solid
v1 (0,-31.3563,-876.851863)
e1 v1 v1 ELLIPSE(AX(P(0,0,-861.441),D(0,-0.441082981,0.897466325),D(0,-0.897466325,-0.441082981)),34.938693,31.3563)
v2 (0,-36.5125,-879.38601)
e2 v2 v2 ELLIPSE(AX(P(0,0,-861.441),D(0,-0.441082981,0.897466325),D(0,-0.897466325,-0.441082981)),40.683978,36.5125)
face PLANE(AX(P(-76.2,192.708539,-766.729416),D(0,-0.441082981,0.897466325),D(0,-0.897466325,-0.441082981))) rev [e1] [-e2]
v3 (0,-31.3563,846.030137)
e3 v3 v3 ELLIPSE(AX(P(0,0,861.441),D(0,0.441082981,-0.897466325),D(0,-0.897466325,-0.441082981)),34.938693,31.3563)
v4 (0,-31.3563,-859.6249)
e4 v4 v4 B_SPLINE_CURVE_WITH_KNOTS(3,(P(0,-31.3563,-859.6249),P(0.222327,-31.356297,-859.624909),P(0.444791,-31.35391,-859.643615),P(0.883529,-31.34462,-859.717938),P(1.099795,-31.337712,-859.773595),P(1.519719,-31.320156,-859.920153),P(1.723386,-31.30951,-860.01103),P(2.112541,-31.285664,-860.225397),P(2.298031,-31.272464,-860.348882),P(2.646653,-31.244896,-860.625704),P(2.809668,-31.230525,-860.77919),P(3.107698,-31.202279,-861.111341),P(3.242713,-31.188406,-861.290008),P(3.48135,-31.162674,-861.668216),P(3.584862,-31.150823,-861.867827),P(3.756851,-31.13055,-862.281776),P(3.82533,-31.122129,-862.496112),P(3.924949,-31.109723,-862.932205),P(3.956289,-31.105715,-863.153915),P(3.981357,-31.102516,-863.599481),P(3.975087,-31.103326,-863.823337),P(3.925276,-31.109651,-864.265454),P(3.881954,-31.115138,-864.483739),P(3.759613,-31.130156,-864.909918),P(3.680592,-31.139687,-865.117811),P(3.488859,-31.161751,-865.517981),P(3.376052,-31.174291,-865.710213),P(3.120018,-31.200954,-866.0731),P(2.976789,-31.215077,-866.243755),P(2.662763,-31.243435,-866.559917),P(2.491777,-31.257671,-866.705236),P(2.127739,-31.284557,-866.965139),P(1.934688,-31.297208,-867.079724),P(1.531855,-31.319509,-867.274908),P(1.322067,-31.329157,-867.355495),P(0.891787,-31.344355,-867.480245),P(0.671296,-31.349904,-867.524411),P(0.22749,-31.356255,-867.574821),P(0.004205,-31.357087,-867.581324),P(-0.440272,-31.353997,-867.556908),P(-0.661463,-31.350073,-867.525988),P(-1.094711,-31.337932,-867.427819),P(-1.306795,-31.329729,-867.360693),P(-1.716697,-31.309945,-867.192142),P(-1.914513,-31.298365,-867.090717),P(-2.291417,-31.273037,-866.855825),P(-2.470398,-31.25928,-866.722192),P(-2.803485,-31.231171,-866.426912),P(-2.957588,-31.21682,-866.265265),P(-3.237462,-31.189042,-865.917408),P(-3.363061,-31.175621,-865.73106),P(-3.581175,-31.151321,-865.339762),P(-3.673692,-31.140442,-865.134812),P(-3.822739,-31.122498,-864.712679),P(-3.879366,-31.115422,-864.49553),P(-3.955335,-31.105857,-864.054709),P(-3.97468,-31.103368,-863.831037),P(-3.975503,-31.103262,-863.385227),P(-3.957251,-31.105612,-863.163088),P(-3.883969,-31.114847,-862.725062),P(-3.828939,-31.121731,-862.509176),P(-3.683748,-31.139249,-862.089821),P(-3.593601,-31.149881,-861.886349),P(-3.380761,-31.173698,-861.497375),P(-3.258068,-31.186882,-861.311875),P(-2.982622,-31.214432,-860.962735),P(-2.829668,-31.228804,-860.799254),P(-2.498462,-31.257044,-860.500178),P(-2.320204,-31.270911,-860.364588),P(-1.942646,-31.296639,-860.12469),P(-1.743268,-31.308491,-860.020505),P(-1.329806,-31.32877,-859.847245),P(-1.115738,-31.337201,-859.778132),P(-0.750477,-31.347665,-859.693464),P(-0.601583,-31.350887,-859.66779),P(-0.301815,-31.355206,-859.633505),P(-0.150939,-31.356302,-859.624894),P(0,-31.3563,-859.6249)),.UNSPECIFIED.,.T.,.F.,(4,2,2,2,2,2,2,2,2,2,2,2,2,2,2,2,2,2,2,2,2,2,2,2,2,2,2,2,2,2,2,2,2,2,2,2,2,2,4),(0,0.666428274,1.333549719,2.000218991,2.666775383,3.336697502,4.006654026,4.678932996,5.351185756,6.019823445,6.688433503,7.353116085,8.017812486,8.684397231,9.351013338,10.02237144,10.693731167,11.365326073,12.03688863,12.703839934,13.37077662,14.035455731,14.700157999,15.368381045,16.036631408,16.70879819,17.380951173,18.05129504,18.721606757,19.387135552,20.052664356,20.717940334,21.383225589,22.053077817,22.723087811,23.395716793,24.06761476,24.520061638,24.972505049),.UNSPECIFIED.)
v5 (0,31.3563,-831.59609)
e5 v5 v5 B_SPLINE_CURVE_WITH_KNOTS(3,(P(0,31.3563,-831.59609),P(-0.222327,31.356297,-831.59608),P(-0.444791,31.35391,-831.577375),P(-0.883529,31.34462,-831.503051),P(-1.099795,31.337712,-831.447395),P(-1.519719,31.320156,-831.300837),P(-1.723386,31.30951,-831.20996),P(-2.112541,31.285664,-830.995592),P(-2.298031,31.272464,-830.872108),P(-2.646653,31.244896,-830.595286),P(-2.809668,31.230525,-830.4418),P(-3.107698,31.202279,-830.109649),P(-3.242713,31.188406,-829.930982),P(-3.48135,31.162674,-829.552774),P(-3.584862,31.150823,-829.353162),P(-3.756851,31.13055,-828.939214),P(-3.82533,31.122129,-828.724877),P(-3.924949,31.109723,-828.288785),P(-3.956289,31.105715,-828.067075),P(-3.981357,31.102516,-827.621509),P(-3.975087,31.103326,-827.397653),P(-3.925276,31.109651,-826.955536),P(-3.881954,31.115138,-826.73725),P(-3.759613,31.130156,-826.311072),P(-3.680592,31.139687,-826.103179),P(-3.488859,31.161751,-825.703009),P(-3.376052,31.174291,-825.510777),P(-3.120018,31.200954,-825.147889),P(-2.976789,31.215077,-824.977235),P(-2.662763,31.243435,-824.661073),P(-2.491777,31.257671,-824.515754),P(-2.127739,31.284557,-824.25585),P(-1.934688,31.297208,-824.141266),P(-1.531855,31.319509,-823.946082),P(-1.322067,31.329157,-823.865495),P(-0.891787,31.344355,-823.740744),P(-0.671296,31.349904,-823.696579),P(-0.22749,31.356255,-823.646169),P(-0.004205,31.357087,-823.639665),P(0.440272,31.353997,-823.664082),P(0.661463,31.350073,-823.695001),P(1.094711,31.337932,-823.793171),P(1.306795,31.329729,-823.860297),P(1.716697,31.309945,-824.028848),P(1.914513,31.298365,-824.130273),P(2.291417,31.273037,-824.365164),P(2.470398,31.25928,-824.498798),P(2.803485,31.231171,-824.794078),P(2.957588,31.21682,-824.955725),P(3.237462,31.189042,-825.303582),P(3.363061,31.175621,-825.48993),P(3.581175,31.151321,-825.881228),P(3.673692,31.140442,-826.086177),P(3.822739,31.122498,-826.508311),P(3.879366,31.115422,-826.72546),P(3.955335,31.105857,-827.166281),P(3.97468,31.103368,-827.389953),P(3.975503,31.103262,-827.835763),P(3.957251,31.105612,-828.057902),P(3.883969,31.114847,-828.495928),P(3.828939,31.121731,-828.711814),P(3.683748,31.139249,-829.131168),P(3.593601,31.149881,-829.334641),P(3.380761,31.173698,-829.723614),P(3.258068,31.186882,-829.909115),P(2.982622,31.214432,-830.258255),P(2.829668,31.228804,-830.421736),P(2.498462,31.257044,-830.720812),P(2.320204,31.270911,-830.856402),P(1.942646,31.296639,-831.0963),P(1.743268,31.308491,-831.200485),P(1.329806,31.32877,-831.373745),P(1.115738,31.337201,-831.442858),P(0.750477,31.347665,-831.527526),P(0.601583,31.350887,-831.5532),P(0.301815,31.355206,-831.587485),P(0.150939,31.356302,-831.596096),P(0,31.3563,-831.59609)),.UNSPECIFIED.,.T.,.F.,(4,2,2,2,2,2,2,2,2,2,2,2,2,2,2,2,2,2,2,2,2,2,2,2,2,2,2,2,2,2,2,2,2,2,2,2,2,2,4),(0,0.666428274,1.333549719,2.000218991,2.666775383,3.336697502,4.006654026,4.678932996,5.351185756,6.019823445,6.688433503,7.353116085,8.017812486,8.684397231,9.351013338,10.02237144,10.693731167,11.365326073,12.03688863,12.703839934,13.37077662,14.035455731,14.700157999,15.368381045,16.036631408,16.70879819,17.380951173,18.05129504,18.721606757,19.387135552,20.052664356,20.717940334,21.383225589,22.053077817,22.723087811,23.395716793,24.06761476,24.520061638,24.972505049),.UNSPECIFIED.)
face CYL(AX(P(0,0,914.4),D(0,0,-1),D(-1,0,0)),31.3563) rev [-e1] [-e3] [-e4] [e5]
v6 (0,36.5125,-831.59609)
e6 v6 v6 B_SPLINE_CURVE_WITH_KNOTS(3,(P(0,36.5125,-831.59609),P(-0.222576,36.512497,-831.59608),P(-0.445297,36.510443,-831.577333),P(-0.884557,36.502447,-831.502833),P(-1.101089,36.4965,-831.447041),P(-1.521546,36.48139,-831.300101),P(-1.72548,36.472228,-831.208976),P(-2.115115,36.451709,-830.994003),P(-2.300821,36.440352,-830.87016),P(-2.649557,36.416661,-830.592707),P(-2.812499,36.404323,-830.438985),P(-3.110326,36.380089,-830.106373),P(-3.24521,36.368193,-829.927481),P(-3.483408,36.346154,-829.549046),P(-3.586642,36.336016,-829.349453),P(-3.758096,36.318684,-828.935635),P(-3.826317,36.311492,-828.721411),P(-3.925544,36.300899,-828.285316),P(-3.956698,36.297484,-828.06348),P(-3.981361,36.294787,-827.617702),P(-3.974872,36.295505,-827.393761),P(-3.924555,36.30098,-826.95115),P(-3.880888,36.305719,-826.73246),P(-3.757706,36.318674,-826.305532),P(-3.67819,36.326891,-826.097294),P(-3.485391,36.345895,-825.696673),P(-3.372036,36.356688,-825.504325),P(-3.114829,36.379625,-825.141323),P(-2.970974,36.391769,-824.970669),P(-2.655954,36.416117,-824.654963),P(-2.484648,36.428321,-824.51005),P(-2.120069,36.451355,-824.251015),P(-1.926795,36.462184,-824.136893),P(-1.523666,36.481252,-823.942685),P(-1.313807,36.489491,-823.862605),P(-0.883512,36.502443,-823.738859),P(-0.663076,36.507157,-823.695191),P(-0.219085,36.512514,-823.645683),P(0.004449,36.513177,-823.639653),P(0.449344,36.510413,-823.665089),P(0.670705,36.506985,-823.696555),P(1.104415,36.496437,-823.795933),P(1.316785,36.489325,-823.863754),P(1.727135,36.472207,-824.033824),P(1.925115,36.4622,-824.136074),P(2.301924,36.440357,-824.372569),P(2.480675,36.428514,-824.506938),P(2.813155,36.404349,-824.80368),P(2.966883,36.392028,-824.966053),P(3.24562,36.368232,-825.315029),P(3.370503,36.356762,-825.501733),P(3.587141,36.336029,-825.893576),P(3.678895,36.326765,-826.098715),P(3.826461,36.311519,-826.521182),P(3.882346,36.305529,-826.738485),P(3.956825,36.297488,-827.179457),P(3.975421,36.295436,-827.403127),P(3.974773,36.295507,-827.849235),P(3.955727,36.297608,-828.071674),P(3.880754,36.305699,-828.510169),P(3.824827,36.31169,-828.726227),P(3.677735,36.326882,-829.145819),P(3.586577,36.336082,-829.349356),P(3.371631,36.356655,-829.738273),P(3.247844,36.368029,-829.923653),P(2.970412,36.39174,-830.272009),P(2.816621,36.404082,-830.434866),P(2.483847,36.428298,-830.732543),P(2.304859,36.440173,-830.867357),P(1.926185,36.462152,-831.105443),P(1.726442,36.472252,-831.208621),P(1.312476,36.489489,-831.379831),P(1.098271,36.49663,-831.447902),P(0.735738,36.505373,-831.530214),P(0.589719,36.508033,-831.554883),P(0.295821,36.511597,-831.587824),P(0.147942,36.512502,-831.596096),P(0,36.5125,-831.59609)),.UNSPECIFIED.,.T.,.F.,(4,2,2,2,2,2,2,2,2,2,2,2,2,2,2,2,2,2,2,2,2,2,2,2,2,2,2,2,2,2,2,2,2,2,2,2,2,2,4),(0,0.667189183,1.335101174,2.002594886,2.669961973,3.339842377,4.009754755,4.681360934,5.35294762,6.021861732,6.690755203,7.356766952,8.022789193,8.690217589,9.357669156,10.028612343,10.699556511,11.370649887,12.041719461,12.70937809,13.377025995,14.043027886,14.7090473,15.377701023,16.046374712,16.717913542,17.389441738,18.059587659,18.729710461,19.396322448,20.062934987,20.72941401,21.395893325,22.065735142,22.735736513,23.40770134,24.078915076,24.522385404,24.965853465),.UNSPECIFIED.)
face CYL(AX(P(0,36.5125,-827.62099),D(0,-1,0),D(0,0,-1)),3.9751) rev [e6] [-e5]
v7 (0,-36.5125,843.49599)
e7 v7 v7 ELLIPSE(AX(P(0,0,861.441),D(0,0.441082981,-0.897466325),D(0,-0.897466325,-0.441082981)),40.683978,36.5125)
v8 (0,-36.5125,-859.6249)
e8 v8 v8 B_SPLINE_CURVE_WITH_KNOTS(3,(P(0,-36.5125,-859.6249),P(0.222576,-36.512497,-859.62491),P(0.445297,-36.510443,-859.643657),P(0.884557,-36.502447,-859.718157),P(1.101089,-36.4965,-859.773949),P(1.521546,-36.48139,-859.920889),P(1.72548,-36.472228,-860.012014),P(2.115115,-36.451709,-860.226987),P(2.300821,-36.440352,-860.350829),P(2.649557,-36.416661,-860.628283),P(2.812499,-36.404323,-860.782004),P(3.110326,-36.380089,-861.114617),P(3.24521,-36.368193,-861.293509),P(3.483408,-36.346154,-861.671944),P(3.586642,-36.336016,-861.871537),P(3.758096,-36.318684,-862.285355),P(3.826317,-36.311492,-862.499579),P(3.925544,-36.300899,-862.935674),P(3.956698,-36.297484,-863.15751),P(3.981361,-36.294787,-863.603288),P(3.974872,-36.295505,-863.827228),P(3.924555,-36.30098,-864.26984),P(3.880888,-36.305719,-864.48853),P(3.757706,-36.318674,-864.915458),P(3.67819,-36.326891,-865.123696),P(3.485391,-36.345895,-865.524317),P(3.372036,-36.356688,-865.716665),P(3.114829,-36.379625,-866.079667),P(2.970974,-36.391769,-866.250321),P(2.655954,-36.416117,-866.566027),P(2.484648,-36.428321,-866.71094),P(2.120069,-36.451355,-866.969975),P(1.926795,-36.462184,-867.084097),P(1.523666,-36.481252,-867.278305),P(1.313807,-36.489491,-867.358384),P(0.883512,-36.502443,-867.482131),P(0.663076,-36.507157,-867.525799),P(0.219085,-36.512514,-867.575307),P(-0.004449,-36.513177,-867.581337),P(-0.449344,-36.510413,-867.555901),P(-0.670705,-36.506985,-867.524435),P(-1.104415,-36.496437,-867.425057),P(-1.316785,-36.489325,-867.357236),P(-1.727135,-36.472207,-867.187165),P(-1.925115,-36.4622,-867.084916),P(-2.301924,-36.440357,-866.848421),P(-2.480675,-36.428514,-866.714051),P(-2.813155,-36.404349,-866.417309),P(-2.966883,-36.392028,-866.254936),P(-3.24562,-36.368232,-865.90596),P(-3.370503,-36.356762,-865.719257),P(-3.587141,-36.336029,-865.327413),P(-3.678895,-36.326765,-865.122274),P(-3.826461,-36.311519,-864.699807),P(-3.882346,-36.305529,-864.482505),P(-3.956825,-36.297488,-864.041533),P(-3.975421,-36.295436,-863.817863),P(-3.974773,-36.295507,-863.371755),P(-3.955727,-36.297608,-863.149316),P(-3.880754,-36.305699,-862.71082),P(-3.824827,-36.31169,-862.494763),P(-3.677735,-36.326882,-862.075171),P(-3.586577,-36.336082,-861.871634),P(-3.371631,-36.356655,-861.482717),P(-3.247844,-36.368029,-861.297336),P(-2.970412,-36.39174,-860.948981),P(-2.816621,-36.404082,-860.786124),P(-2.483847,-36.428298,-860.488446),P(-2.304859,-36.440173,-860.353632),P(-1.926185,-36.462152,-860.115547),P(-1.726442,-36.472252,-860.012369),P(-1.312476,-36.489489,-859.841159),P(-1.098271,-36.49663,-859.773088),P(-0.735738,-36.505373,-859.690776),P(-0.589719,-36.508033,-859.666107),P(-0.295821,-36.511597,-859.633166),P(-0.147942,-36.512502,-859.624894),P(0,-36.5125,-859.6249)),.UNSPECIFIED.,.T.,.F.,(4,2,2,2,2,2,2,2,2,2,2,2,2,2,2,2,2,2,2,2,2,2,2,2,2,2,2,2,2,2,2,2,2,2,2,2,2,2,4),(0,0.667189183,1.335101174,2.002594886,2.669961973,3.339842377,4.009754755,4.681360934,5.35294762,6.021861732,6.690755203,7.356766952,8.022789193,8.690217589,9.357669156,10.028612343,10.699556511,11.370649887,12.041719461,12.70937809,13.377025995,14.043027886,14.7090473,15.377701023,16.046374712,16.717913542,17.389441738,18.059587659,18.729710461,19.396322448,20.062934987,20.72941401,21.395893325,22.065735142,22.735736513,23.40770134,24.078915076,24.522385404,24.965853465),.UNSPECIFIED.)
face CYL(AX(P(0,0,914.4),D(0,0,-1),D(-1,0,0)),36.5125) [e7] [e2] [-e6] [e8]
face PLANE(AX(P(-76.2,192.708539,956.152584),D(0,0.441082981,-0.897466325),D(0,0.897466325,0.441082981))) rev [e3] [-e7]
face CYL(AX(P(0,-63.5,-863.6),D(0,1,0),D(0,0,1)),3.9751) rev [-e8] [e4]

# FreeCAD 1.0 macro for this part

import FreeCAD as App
import Part
import Sketcher
Q = App.Units.Quantity

doc = App.newDocument("Part")
body = doc.addObject("PartDesign::Body", "Body")

# Sketch on XY plane
sketch1 = doc.addObject("Sketcher::SketchObject", "Sketch")
body.addObject(sketch1)
sketch1.AttachmentSupport = (doc.XY_Plane, [""])
sketch1.MapMode = "FlatFace"
sketch1.addGeometry([
    Part.Circle(App.Vector(0, 0, 0), App.Vector(0, 0, 1), 36.5125),
    Part.Circle(App.Vector(0, 0, 0), App.Vector(0, 0, 1), 31.3563),
], False)
sketch1.addConstraint([
    Sketcher.Constraint("Coincident", 0, 3, -1, 1),
    Sketcher.Constraint("Coincident", 1, 3, -1, 1),
    Sketcher.Constraint("Diameter", 0, Q("2.875 in")),
    Sketcher.Constraint("Diameter", 1, Q("2.469 in")),
])
pad1 = doc.addObject("PartDesign::Pad", "Pad")
body.addObject(pad1)
pad1.Profile = sketch1
pad1.Length = Q("72 in")
pad1.Midplane = True

# Sketch on YZ plane
sketch2 = doc.addObject("Sketcher::SketchObject", "Sketch001")
body.addObject(sketch2)
sketch2.AttachmentSupport = (doc.YZ_Plane, [""])
sketch2.MapMode = "FlatFace"
sketch2.addGeometry([
    Part.LineSegment(App.Vector(-232.924753, 746.96412, 0), App.Vector(192.708539, 956.152584, 0)),  # 0
    Part.LineSegment(App.Vector(192.708539, 956.152584, 0), App.Vector(-232.924753, 956.152584, 0)),  # 1
    Part.LineSegment(App.Vector(-232.924753, 956.152584, 0), App.Vector(-232.924753, 746.96412, 0)),  # 2
    Part.LineSegment(App.Vector(192.708539, -766.729416, 0), App.Vector(-232.924753, -975.91788, 0)),  # 3
    Part.LineSegment(App.Vector(-232.924753, -975.91788, 0), App.Vector(192.708539, -975.91788, 0)),  # 4
    Part.LineSegment(App.Vector(192.708539, -975.91788, 0), App.Vector(192.708539, -766.729416, 0)),  # 5
], False)
sketch2.addConstraint([
    Sketcher.Constraint("Coincident", 0, 2, 1, 1),
    Sketcher.Constraint("Coincident", 1, 2, 2, 1),
    Sketcher.Constraint("Coincident", 2, 2, 0, 1),
    Sketcher.Constraint("Coincident", 3, 2, 4, 1),
    Sketcher.Constraint("Coincident", 4, 2, 5, 1),
    Sketcher.Constraint("Coincident", 5, 2, 3, 1),
    Sketcher.Constraint("Horizontal", 1),
    Sketcher.Constraint("Vertical", 2),
    Sketcher.Constraint("Horizontal", 4),
    Sketcher.Constraint("Vertical", 5),
    Sketcher.Constraint("Parallel", 0, 3),
    Sketcher.Constraint("Vertical", 2, 2, 3, 2),
    Sketcher.Constraint("Vertical", 0, 2, 4, 2),
    Sketcher.Constraint("DistanceY", 3, 2, 2, 2, Q("67.83 in")),
    Sketcher.Constraint("DistanceX", 1, 2, 1, 1, 425.633293),
    Sketcher.Constraint("DistanceY", 2, 2, 2, 1, 209.188463),
    Sketcher.Constraint("DistanceX", -1, 1, 0, 2, 192.708539),
    Sketcher.Constraint("DistanceY", -1, 1, 2, 2, 746.96412),
])
pocket1 = doc.addObject("PartDesign::Pocket", "Pocket")
body.addObject(pocket1)
pocket1.Profile = sketch2
pocket1.Length = Q("6 in")
pocket1.Midplane = True

# Sketch on XZ plane
sketch3 = doc.addObject("Sketcher::SketchObject", "Sketch002")
body.addObject(sketch3)
sketch3.AttachmentSupport = (doc.XZ_Plane, [""])
sketch3.MapMode = "FlatFace"
sketch3.addGeometry(Part.Circle(App.Vector(0, -863.6, 0), App.Vector(0, 0, 1), 3.9751), False)
sketch3.addConstraint([
    Sketcher.Constraint("PointOnObject", 0, 3, -2),
    Sketcher.Constraint("Diameter", 0, Q("0.313 in")),
    Sketcher.Constraint("DistanceY", 0, 3, -1, 1, Q("34 in")),
])
pocket2 = doc.addObject("PartDesign::Pocket", "Pocket001")
body.addObject(pocket2)
pocket2.Profile = sketch3
pocket2.Length = Q("5 in")
pocket2.Midplane = True

# Sketch on XZ plane
sketch4 = doc.addObject("Sketcher::SketchObject", "Sketch003")
body.addObject(sketch4)
sketch4.AttachmentSupport = (doc.XZ_Plane, [""])
sketch4.MapMode = "FlatFace"
sketch4.addGeometry(Part.Circle(App.Vector(0, -827.62099, 0), App.Vector(0, 0, 1), 3.9751), False)
sketch4.addConstraint([
    Sketcher.Constraint("PointOnObject", 0, 3, -2),
    Sketcher.Constraint("Diameter", 0, Q("0.313 in")),
    Sketcher.Constraint("DistanceY", 0, 3, -1, 1, 827.62099),
])
pocket3 = doc.addObject("PartDesign::Pocket", "Pocket002")
body.addObject(pocket3)
pocket3.Profile = sketch4
pocket3.Type = "ThroughAll"

doc.recompute()
